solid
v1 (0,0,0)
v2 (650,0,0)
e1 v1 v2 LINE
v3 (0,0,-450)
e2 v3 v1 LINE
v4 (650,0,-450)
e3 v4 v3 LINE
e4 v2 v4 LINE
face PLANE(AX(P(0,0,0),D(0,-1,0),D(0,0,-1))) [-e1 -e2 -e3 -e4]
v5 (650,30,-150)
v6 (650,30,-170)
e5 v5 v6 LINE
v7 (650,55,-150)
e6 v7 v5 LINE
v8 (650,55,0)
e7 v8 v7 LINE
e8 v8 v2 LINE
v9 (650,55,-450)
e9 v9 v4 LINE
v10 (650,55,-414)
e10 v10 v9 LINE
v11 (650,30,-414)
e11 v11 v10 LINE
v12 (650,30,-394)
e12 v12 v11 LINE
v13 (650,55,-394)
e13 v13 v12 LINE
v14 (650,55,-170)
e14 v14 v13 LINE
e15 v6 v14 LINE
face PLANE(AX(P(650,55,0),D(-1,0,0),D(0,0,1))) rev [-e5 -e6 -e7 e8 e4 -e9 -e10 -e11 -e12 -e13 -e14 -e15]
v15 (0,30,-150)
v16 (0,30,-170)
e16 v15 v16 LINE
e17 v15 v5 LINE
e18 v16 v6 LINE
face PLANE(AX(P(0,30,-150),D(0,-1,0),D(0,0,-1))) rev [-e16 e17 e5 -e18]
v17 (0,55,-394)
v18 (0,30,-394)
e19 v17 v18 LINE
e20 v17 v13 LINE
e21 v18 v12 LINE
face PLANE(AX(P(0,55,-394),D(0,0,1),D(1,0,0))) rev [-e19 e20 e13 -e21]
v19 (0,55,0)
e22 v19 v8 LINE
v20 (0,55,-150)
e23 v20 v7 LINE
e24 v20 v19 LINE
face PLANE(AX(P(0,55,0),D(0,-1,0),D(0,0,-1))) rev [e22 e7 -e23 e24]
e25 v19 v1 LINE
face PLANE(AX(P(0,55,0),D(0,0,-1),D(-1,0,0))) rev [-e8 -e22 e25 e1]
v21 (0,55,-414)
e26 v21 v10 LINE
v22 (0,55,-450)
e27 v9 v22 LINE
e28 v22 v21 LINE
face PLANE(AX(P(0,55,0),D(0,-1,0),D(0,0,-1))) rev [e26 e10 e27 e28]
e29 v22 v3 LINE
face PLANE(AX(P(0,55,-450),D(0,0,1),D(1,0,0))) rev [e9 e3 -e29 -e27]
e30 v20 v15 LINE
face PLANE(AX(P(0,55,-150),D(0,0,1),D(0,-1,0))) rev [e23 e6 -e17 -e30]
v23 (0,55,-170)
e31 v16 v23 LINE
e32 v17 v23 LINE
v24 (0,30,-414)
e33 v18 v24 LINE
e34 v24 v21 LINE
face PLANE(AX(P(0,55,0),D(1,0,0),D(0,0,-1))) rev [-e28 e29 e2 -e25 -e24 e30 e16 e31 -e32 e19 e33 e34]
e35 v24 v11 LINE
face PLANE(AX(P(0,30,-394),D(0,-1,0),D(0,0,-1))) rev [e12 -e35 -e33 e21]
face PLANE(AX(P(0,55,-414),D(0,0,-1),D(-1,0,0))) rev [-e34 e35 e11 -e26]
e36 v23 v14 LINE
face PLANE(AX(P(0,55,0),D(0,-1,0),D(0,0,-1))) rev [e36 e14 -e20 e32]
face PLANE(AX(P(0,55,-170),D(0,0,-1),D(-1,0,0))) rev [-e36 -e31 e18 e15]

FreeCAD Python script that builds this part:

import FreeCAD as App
import Part
import Sketcher
from FreeCAD import Vector


def add_polygon(sketch, points):
    """Adds a closed chain of lines whose ends are joined by coincident constraints."""
    first, n = sketch.GeometryCount, len(points)
    for a, b in zip(points, points[1:] + points[:1]):
        sketch.addGeometry(Part.LineSegment(App.Vector(*a, 0), App.Vector(*b, 0)), False)
    for i in range(n):
        sketch.addConstraint(Sketcher.Constraint("Coincident", first + i, 2, first + (i + 1) % n, 1))

doc = App.newDocument("Part")
body = doc.addObject("PartDesign::Body", "Body")

# Sketch on XZ plane
sketch1 = body.newObject("Sketcher::SketchObject", "Sketch")
sketch1.AttachmentSupport = (doc.getObject("XZ_Plane"), [""])
sketch1.MapMode = "FlatFace"
add_polygon(sketch1, [(0, -450), (0, 0), (650, 0), (650, -450)])  # lines 0-3
sketch1.addConstraint([
    Sketcher.Constraint("Vertical", 0),
    Sketcher.Constraint("Horizontal", 1),
    Sketcher.Constraint("Vertical", 2),
    Sketcher.Constraint("Horizontal", 3),
    Sketcher.Constraint("Coincident", 0, 2, -1, 1),
    Sketcher.Constraint("DistanceX", 1, 1, 1, 2, 650.0),
    Sketcher.Constraint("DistanceY", 0, 1, 0, 2, 450.0),
])
pad1 = body.newObject("PartDesign::Pad", "Pad")
pad1.Profile = sketch1
pad1.Length = 55
pad1.Reversed = True

# Sketch on YZ plane
sketch2 = body.newObject("Sketcher::SketchObject", "Sketch001")
sketch2.AttachmentSupport = (doc.getObject("YZ_Plane"), [""])
sketch2.MapMode = "FlatFace"
sketch2.AttachmentOffset = App.Placement(Vector(0, 0, 650), App.Rotation())
add_polygon(sketch2, [(55, -394), (30, -394), (30, -414), (55, -414)])  # lines 0-3
add_polygon(sketch2, [(55, -150), (30, -150), (30, -170), (55, -170)])  # lines 4-7
sketch2.addConstraint([
    Sketcher.Constraint("Horizontal", 0),
    Sketcher.Constraint("Vertical", 1),
    Sketcher.Constraint("Horizontal", 2),
    Sketcher.Constraint("Vertical", 3),
    Sketcher.Constraint("Horizontal", 4),
    Sketcher.Constraint("Vertical", 5),
    Sketcher.Constraint("Horizontal", 6),
    Sketcher.Constraint("Vertical", 7),
    Sketcher.Constraint("Vertical", 1, 2, 4, 2),
    Sketcher.Constraint("Vertical", 3, 2, 6, 2),
    Sketcher.Constraint("Equal", 3, 5),
    Sketcher.Constraint("DistanceX", 0, 2, 0, 1, 25.0),
    Sketcher.Constraint("DistanceY", 1, 2, 1, 1, 20.0),
    Sketcher.Constraint("DistanceX", -1, 1, 0, 2, 30.0),
    Sketcher.Constraint("DistanceY", 0, 2, -1, 1, 394.0),
    Sketcher.Constraint("DistanceY", 4, 2, -1, 1, 150.0),
])
pocket1 = body.newObject("PartDesign::Pocket", "Pocket")
pocket1.Profile = sketch2
pocket1.Type = "ThroughAll"

doc.recompute()
